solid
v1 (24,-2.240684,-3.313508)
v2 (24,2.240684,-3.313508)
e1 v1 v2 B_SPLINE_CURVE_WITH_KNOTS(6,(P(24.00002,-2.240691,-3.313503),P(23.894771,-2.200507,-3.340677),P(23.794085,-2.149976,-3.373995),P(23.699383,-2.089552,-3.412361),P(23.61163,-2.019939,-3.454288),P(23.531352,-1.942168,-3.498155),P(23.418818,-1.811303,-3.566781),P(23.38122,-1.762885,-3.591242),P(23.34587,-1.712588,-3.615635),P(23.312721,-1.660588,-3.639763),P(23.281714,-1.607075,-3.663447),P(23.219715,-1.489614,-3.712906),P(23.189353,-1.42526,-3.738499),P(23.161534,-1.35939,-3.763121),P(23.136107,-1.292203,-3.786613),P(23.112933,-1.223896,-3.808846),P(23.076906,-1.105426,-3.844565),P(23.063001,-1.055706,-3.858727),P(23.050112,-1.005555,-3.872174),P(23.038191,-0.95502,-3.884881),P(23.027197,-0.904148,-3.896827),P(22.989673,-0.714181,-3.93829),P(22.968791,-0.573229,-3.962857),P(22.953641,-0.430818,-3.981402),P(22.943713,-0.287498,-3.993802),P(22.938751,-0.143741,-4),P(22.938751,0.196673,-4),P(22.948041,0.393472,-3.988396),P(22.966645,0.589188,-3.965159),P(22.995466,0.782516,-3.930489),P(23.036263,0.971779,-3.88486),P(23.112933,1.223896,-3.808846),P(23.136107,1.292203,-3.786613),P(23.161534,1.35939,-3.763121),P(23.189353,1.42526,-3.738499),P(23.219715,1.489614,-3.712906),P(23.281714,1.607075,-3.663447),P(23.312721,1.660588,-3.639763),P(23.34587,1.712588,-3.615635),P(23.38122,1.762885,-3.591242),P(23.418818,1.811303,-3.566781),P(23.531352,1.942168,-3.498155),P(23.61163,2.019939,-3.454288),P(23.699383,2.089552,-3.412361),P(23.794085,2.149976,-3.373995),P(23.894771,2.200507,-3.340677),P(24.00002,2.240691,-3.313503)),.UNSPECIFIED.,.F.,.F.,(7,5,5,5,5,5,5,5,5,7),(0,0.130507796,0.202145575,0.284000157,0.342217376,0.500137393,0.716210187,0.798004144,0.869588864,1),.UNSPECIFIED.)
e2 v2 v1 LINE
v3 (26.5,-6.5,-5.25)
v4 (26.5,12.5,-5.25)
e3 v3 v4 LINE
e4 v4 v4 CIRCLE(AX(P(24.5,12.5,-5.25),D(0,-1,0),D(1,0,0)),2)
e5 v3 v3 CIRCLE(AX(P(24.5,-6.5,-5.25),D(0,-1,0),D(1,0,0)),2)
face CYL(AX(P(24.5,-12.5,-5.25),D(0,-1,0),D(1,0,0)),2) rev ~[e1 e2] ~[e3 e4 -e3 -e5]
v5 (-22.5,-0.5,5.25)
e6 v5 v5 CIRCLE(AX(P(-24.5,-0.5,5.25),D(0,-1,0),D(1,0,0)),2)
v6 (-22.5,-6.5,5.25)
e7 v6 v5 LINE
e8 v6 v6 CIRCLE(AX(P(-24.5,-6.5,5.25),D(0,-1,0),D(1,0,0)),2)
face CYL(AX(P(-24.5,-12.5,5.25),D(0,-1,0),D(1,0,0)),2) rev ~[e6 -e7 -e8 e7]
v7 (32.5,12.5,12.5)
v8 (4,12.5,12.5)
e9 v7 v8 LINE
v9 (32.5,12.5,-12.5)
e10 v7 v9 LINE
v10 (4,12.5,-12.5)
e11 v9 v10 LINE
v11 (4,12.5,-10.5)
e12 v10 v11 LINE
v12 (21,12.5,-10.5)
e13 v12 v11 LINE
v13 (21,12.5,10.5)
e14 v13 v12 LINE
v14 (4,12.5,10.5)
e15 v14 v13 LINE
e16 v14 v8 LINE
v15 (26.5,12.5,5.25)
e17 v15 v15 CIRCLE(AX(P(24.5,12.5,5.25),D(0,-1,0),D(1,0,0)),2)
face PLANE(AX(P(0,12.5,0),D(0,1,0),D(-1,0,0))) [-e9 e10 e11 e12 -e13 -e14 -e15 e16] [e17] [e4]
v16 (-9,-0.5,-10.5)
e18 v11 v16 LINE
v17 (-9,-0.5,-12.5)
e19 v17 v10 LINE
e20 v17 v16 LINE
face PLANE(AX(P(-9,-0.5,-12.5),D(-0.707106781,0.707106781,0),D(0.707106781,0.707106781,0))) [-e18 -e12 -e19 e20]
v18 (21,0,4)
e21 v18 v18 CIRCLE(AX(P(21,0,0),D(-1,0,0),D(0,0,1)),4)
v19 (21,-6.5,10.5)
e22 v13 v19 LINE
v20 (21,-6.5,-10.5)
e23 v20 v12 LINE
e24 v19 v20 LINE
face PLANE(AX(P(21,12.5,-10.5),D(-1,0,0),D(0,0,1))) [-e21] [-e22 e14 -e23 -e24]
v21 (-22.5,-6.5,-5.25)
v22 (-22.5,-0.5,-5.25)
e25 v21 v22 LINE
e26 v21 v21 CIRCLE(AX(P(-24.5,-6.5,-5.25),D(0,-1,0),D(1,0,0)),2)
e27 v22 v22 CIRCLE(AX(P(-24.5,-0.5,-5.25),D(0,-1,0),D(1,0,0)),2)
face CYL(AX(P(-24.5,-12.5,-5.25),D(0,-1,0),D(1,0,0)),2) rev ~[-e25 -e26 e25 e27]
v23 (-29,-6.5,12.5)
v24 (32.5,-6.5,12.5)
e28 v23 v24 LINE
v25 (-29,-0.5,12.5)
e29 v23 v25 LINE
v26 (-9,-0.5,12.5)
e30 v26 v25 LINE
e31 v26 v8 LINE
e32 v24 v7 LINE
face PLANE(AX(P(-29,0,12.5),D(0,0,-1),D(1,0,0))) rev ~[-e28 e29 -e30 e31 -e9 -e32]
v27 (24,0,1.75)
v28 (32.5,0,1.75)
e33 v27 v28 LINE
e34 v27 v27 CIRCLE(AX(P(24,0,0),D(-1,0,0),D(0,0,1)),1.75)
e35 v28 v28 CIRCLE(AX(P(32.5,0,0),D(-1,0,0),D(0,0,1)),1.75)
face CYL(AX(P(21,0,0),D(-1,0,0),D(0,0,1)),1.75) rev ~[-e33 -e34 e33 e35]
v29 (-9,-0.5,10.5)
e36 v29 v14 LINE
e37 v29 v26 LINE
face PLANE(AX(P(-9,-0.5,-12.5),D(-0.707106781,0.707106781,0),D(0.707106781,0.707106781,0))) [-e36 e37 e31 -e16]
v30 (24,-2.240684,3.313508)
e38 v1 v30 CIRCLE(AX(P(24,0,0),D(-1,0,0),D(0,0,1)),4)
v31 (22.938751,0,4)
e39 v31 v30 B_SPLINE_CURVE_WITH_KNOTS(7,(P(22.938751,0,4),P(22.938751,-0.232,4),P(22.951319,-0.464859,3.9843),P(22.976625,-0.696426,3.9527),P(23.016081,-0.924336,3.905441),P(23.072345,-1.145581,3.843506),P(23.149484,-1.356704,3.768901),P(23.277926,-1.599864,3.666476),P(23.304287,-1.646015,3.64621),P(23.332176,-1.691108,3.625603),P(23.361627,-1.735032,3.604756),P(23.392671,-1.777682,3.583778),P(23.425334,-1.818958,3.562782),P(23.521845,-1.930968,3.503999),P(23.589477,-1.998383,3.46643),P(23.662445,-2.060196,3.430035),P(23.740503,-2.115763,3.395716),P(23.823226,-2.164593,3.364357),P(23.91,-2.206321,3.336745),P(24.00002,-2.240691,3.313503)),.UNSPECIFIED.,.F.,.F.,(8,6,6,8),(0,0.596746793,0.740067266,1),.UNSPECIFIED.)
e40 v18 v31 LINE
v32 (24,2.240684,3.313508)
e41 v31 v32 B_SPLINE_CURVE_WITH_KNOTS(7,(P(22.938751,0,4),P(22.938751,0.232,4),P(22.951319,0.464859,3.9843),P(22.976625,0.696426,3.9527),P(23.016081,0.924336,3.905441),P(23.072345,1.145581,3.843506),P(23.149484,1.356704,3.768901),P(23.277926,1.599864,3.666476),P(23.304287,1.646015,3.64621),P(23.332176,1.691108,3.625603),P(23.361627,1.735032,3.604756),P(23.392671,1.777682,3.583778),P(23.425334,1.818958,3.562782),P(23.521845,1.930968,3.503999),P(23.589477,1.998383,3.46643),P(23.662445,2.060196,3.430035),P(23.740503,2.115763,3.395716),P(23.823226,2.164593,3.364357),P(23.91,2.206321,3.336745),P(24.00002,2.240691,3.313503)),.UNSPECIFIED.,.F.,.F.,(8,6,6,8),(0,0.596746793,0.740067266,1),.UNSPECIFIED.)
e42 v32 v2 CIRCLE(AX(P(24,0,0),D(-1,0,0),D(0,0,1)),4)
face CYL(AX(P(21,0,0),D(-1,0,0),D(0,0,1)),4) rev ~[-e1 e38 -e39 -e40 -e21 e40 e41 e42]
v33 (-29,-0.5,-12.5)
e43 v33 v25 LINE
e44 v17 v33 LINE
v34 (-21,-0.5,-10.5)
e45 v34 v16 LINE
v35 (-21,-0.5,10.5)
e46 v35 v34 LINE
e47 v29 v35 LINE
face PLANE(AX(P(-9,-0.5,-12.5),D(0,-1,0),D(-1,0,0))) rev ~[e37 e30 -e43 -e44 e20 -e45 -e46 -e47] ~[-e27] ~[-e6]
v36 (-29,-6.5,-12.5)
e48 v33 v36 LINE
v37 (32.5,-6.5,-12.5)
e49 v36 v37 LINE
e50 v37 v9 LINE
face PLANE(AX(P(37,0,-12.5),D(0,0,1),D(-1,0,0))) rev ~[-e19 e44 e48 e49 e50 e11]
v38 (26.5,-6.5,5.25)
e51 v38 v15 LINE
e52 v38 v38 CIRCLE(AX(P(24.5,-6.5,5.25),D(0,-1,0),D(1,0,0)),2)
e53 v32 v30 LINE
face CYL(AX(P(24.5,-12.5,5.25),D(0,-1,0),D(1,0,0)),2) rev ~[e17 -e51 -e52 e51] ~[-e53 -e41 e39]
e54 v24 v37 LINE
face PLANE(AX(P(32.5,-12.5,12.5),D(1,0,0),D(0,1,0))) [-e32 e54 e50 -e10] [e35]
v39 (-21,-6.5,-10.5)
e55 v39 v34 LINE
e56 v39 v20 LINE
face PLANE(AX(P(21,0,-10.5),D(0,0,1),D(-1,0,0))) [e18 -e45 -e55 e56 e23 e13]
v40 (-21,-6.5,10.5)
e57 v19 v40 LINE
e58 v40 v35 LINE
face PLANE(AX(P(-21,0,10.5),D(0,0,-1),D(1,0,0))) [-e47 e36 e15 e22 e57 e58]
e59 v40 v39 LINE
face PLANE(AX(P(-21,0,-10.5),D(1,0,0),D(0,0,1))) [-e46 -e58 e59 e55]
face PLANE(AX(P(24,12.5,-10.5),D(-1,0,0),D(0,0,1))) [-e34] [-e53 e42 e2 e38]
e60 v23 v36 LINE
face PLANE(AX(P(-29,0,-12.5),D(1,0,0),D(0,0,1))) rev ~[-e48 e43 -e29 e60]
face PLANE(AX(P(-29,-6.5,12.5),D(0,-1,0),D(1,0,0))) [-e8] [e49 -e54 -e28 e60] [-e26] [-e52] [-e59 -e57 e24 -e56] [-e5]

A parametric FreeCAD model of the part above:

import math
import FreeCAD as App
import Part
import Sketcher
Q = App.Units.Quantity

doc = App.newDocument("Part")
params = doc.addObject("Spreadsheet::Sheet", "Params")
for row, (alias, value) in enumerate([
    ("sketch1_width", "42 mm"),
    ("sketch1_height", "21 mm"),
    ("pad1_length", "25 mm"),
    ("sketch2_radius", "11 mm"),
    ("sketch2_width", "10 mm"),
    ("pad2_length", "5 mm"),
    ("sketch3_diameter", "3.5 mm"),
    ("sketch4_width", "3 mm"),
    ("sketch4_height", "21 mm"),
    ("pocket2_length", "7 mm"),
    ("sketch5_width", "3 mm"),
    ("sketch5_height", "21 mm"),
    ("pocket3_length", "7 mm"),
    ("sketch6_diameter", "6 mm"),
    ("sketch7_diameter", "3.5 mm"),
    ("sketch7_diameter2", "6 mm"),
    ("pad3_length", "18 mm"),
    ("sketch8_diameter", "8 mm"),
    ("pocket5_length", "3 mm"),
    ("sketch9_diameter", "4 mm"),
    ("sketch10_width", "20 mm"),
    ("sketch10_width2", "33 mm"),
    ("sketch10_height", "13 mm"),
    ("sketch11_height", "25 mm"),
    ("sketch12_height", "6 mm"),
    ("sketch12_width", "61.5 mm"),
], start=1):
    params.set(f"A{row}", alias)
    params.set(f"B{row}", "=" + value)
    params.setAlias(f"B{row}", alias)

body = doc.addObject("PartDesign::Body", "Body")

# Sketch on XZ plane
sketch1 = body.newObject("Sketcher::SketchObject", "Sketch")
sketch1.AttachmentSupport = (doc.getObject("XZ_Plane"), [""])
sketch1.MapMode = "FlatFace"
sketch1.addGeometry(Part.LineSegment(App.Vector(-29, -12, 0), App.Vector(-29, 12, 0)), False)
sketch1.addGeometry(Part.LineSegment(App.Vector(-29, 12, 0), App.Vector(46, 12, 0)), False)
sketch1.addGeometry(Part.LineSegment(App.Vector(46, 12, 0), App.Vector(37, -12, 0)), False)
sketch1.addGeometry(Part.LineSegment(App.Vector(37, -12, 0), App.Vector(-29, -12, 0)), False)
sketch1.addGeometry(Part.LineSegment(App.Vector(21, 10, 0), App.Vector(-21, 10, 0)), False)
sketch1.addGeometry(Part.LineSegment(App.Vector(-21, 10, 0), App.Vector(-21, -10, 0)), False)
sketch1.addGeometry(Part.LineSegment(App.Vector(-21, -10, 0), App.Vector(21, -10, 0)), False)
sketch1.addGeometry(Part.LineSegment(App.Vector(21, -10, 0), App.Vector(21, 10, 0)), False)
sketch1.addConstraint(Sketcher.Constraint("Coincident", 0, 2, 1, 1))
sketch1.addConstraint(Sketcher.Constraint("Coincident", 1, 2, 2, 1))
sketch1.addConstraint(Sketcher.Constraint("Coincident", 2, 2, 3, 1))
sketch1.addConstraint(Sketcher.Constraint("Coincident", 3, 2, 0, 1))
sketch1.addConstraint(Sketcher.Constraint("Coincident", 4, 2, 5, 1))
sketch1.addConstraint(Sketcher.Constraint("Coincident", 5, 2, 6, 1))
sketch1.addConstraint(Sketcher.Constraint("Coincident", 6, 2, 7, 1))
sketch1.addConstraint(Sketcher.Constraint("Coincident", 7, 2, 4, 1))
sketch1.addConstraint(Sketcher.Constraint("Vertical", 0))
sketch1.addConstraint(Sketcher.Constraint("Horizontal", 1))
sketch1.addConstraint(Sketcher.Constraint("Horizontal", 3))
sketch1.addConstraint(Sketcher.Constraint("Horizontal", 4))
sketch1.addConstraint(Sketcher.Constraint("Vertical", 5))
sketch1.addConstraint(Sketcher.Constraint("Horizontal", 6))
sketch1.addConstraint(Sketcher.Constraint("Vertical", 7))
sketch1.addConstraint(Sketcher.Constraint("Symmetric", 4, 2, 6, 2, -1, 1))
sketch1.addConstraint(Sketcher.Constraint("DistanceX", 4, 2, 4, 1, 42.0))
sketch1.addConstraint(Sketcher.Constraint("DistanceY", 5, 2, 5, 1, 21.0))
sketch1.addConstraint(Sketcher.Constraint("DistanceX", 0, 2, 4, 2, 8.0))
sketch1.addConstraint(Sketcher.Constraint("DistanceY", 4, 2, 0, 2, 2.0))
sketch1.addConstraint(Sketcher.Constraint("DistanceY", 3, 2, 5, 2, 2.0))
sketch1.addConstraint(Sketcher.Constraint("DistanceX", 6, 2, 2, 2, 16.0))
sketch1.addConstraint(Sketcher.Constraint("Angle", 2, Q("-110 deg")))
sketch1.setExpression("Constraints[16]", "Params.sketch1_width")
sketch1.setExpression("Constraints[17]", "Params.sketch1_height")
pad1 = body.newObject("PartDesign::Pad", "Pad")
pad1.Profile = sketch1
pad1.setExpression("Length", "Params.pad1_length")
pad1.Midplane = True

# Sketch on an angled plane
sketch2 = body.newObject("Sketcher::SketchObject", "Sketch001")
sketch2.Placement = App.Placement(App.Vector(37, -12.5, -12.5), App.Rotation(App.Vector(-0.342020143, 0, -0.939692621), App.Vector(0, 1, 0), App.Vector(0.939692621, 0, -0.342020143), "ZXY"))
sketch2.addGeometry(Part.ArcOfCircle(Part.Circle(App.Vector(-13, 13, 0), App.Vector(0, 0, 1), 11), math.radians(117), math.radians(243)), False)
sketch2.addGeometry(Part.LineSegment(App.Vector(-18, 3, 0), App.Vector(-8, 3, 0)), False)
sketch2.addGeometry(Part.ArcOfCircle(Part.Circle(App.Vector(-13, 13, 0), App.Vector(0, 0, 1), 11), math.radians(-63), math.radians(63)), False)
sketch2.addGeometry(Part.LineSegment(App.Vector(-8, 22, 0), App.Vector(-18, 22, 0)), False)
sketch2.addConstraint(Sketcher.Constraint("Coincident", 0, 2, 1, 1))
sketch2.addConstraint(Sketcher.Constraint("Coincident", 1, 2, 2, 1))
sketch2.addConstraint(Sketcher.Constraint("Coincident", 2, 2, 3, 1))
sketch2.addConstraint(Sketcher.Constraint("Coincident", 3, 2, 0, 1))
sketch2.addConstraint(Sketcher.Constraint("Horizontal", 1))
sketch2.addConstraint(Sketcher.Constraint("Horizontal", 3))
sketch2.addConstraint(Sketcher.Constraint("Coincident", 2, 3, 0, 3))
sketch2.addConstraint(Sketcher.Constraint("Equal", 0, 2))
sketch2.addConstraint(Sketcher.Constraint("Vertical", 1, 2, 2, 2))
sketch2.addConstraint(Sketcher.Constraint("Radius", 0, 11.0))
sketch2.addConstraint(Sketcher.Constraint("DistanceX", 1, 1, 1, 2, 10.0))
sketch2.addConstraint(Sketcher.Constraint("DistanceY", -1, 1, 0, 3, 12.5))
sketch2.addConstraint(Sketcher.Constraint("DistanceX", 0, 3, -1, 1, 13.3022))
sketch2.setExpression("Constraints[9]", "Params.sketch2_radius")
sketch2.setExpression("Constraints[10]", "Params.sketch2_width")
pad2 = body.newObject("PartDesign::Pad", "Pad001")
pad2.Profile = sketch2
pad2.setExpression("Length", "Params.pad2_length")

# Sketch on XZ plane
sketch3 = body.newObject("Sketcher::SketchObject", "Sketch002")
sketch3.AttachmentSupport = (doc.getObject("XZ_Plane"), [""])
sketch3.MapMode = "FlatFace"
sketch3.AttachmentOffset = App.Placement(App.Vector(0, 0, 9.798), App.Rotation())
sketch3.addGeometry(Part.Circle(App.Vector(43.9, -0.9, 0), App.Vector(0, 0, 1), 1.8), False)
sketch3.addConstraint(Sketcher.Constraint("Diameter", 0, 3.5))
sketch3.addConstraint(Sketcher.Constraint("DistanceY", 0, 3, -1, 1, 0.855))
sketch3.addConstraint(Sketcher.Constraint("DistanceX", -1, 1, 0, 3, 43.8988))
sketch3.setExpression("Constraints[0]", "Params.sketch3_diameter")
pocket1 = body.newObject("PartDesign::Pocket", "Pocket")
pocket1.Profile = sketch3
pocket1.Type = "ThroughAll"

# Sketch on YZ plane
sketch4 = body.newObject("Sketcher::SketchObject", "Sketch003")
sketch4.AttachmentSupport = (doc.getObject("YZ_Plane"), [""])
sketch4.MapMode = "FlatFace"
sketch4.AttachmentOffset = App.Placement(App.Vector(0, 0, 21), App.Rotation())
sketch4.addGeometry(Part.LineSegment(App.Vector(-6.5, -10.5, 0), App.Vector(-9.5, -10.5, 0)), False)
sketch4.addGeometry(Part.LineSegment(App.Vector(-9.5, -10.5, 0), App.Vector(-9.5, 10.5, 0)), False)
sketch4.addGeometry(Part.LineSegment(App.Vector(-9.5, 10.5, 0), App.Vector(-6.5, 10.5, 0)), False)
sketch4.addGeometry(Part.LineSegment(App.Vector(-6.5, 10.5, 0), App.Vector(-6.5, -10.5, 0)), False)
sketch4.addConstraint(Sketcher.Constraint("Coincident", 0, 2, 1, 1))
sketch4.addConstraint(Sketcher.Constraint("Coincident", 1, 2, 2, 1))
sketch4.addConstraint(Sketcher.Constraint("Coincident", 2, 2, 3, 1))
sketch4.addConstraint(Sketcher.Constraint("Coincident", 3, 2, 0, 1))
sketch4.addConstraint(Sketcher.Constraint("Horizontal", 0))
sketch4.addConstraint(Sketcher.Constraint("Vertical", 1))
sketch4.addConstraint(Sketcher.Constraint("Horizontal", 2))
sketch4.addConstraint(Sketcher.Constraint("Vertical", 3))
sketch4.addConstraint(Sketcher.Constraint("DistanceX", 0, 2, 0, 1, 3.0))
sketch4.addConstraint(Sketcher.Constraint("DistanceY", 1, 1, 1, 2, 21.0))
sketch4.addConstraint(Sketcher.Constraint("DistanceX", 0, 2, -1, 1, 9.5))
sketch4.addConstraint(Sketcher.Constraint("DistanceY", 0, 2, -1, 1, 10.5))
sketch4.setExpression("Constraints[8]", "Params.sketch4_width")
sketch4.setExpression("Constraints[9]", "Params.sketch4_height")
pocket2 = body.newObject("PartDesign::Pocket", "Pocket001")
pocket2.Profile = sketch4
pocket2.setExpression("Length", "Params.pocket2_length")
pocket2.Reversed = True

# Sketch on YZ plane
sketch5 = body.newObject("Sketcher::SketchObject", "Sketch004")
sketch5.AttachmentSupport = (doc.getObject("YZ_Plane"), [""])
sketch5.MapMode = "FlatFace"
sketch5.AttachmentOffset = App.Placement(App.Vector(0, 0, -21), App.Rotation())
sketch5.addGeometry(Part.LineSegment(App.Vector(-6.5, -10.5, 0), App.Vector(-6.5, 10.5, 0)), False)
sketch5.addGeometry(Part.LineSegment(App.Vector(-6.5, 10.5, 0), App.Vector(-9.5, 10.5, 0)), False)
sketch5.addGeometry(Part.LineSegment(App.Vector(-9.5, 10.5, 0), App.Vector(-9.5, -10.5, 0)), False)
sketch5.addGeometry(Part.LineSegment(App.Vector(-9.5, -10.5, 0), App.Vector(-6.5, -10.5, 0)), False)
sketch5.addConstraint(Sketcher.Constraint("Coincident", 0, 2, 1, 1))
sketch5.addConstraint(Sketcher.Constraint("Coincident", 1, 2, 2, 1))
sketch5.addConstraint(Sketcher.Constraint("Coincident", 2, 2, 3, 1))
sketch5.addConstraint(Sketcher.Constraint("Coincident", 3, 2, 0, 1))
sketch5.addConstraint(Sketcher.Constraint("Vertical", 0))
sketch5.addConstraint(Sketcher.Constraint("Horizontal", 1))
sketch5.addConstraint(Sketcher.Constraint("Vertical", 2))
sketch5.addConstraint(Sketcher.Constraint("Horizontal", 3))
sketch5.addConstraint(Sketcher.Constraint("DistanceX", 1, 2, 1, 1, 3.0))
sketch5.addConstraint(Sketcher.Constraint("DistanceY", 0, 1, 0, 2, 21.0))
sketch5.addConstraint(Sketcher.Constraint("DistanceX", 0, 2, -1, 1, 6.5))
sketch5.addConstraint(Sketcher.Constraint("DistanceY", -1, 1, 0, 2, 10.5))
sketch5.setExpression("Constraints[8]", "Params.sketch5_width")
sketch5.setExpression("Constraints[9]", "Params.sketch5_height")
pocket3 = body.newObject("PartDesign::Pocket", "Pocket002")
pocket3.Profile = sketch5
pocket3.setExpression("Length", "Params.pocket3_length")

# Sketch on YZ plane
sketch6 = body.newObject("Sketcher::SketchObject", "Sketch005")
sketch6.AttachmentSupport = (doc.getObject("YZ_Plane"), [""])
sketch6.MapMode = "FlatFace"
sketch6.AttachmentOffset = App.Placement(App.Vector(0, 0, 21), App.Rotation())
sketch6.addGeometry(Part.Circle(App.Vector(0, 0, 0), App.Vector(0, 0, 1), 3), False)
sketch6.addConstraint(Sketcher.Constraint("Coincident", 0, 3, -1, 1))
sketch6.addConstraint(Sketcher.Constraint("Diameter", 0, 6.0))
sketch6.setExpression("Constraints[1]", "Params.sketch6_diameter")
pocket4 = body.newObject("PartDesign::Pocket", "Pocket003")
pocket4.Profile = sketch6
pocket4.Type = "ThroughAll"
pocket4.Reversed = True

# Sketch on YZ plane
sketch7 = body.newObject("Sketcher::SketchObject", "Sketch006")
sketch7.AttachmentSupport = (doc.getObject("YZ_Plane"), [""])
sketch7.MapMode = "FlatFace"
sketch7.AttachmentOffset = App.Placement(App.Vector(0, 0, 21), App.Rotation())
sketch7.addGeometry(Part.Circle(App.Vector(0, 0, 0), App.Vector(0, 0, 1), 3), False)
sketch7.addGeometry(Part.Circle(App.Vector(0, 0, 0), App.Vector(0, 0, 1), 1.8), False)
sketch7.addConstraint(Sketcher.Constraint("Coincident", 0, 3, -1, 1))
sketch7.addConstraint(Sketcher.Constraint("Coincident", 1, 3, -1, 1))
sketch7.addConstraint(Sketcher.Constraint("Diameter", 1, 3.5))
sketch7.addConstraint(Sketcher.Constraint("Diameter", 0, 6.0))
sketch7.setExpression("Constraints[2]", "Params.sketch7_diameter")
sketch7.setExpression("Constraints[3]", "Params.sketch7_diameter2")
pad3 = body.newObject("PartDesign::Pad", "Pad002")
pad3.Profile = sketch7
pad3.setExpression("Length", "Params.pad3_length")

# Sketch on YZ plane
sketch8 = body.newObject("Sketcher::SketchObject", "Sketch007")
sketch8.AttachmentSupport = (doc.getObject("YZ_Plane"), [""])
sketch8.MapMode = "FlatFace"
sketch8.AttachmentOffset = App.Placement(App.Vector(0, 0, 21), App.Rotation())
sketch8.addGeometry(Part.Circle(App.Vector(0, 0, 0), App.Vector(0, 0, 1), 4), False)
sketch8.addConstraint(Sketcher.Constraint("Coincident", 0, 3, -1, 1))
sketch8.addConstraint(Sketcher.Constraint("Diameter", 0, 8.0))
sketch8.setExpression("Constraints[1]", "Params.sketch8_diameter")
pocket5 = body.newObject("PartDesign::Pocket", "Pocket004")
pocket5.Profile = sketch8
pocket5.setExpression("Length", "Params.pocket5_length")
pocket5.Reversed = True

# Sketch on XZ plane
sketch9 = body.newObject("Sketcher::SketchObject", "Sketch008")
sketch9.AttachmentSupport = (doc.getObject("XZ_Plane"), [""])
sketch9.MapMode = "FlatFace"
sketch9.AttachmentOffset = App.Placement(App.Vector(0, 0, 12.5), App.Rotation())
sketch9.addGeometry(Part.Circle(App.Vector(-24.5, -5.2, 0), App.Vector(0, 0, 1), 2), False)
sketch9.addGeometry(Part.Circle(App.Vector(-24.5, 5.2, 0), App.Vector(0, 0, 1), 2), False)
sketch9.addGeometry(Part.Circle(App.Vector(24.5, -5.2, 0), App.Vector(0, 0, 1), 2), False)
sketch9.addGeometry(Part.Circle(App.Vector(24.5, 5.2, 0), App.Vector(0, 0, 1), 2), False)
sketch9.addConstraint(Sketcher.Constraint("Equal", 0, 1))
sketch9.addConstraint(Sketcher.Constraint("Equal", 1, 2))
sketch9.addConstraint(Sketcher.Constraint("Equal", 2, 3))
sketch9.addConstraint(Sketcher.Constraint("Symmetric", 1, 3, 2, 3, -1, 1))
sketch9.addConstraint(Sketcher.Constraint("Symmetric", 0, 3, 3, 3, -1, 1))
sketch9.addConstraint(Sketcher.Constraint("Symmetric", 0, 3, 2, 3, -2))
sketch9.addConstraint(Sketcher.Constraint("Diameter", 0, 4.0))
sketch9.addConstraint(Sketcher.Constraint("DistanceX", 0, 3, 2, 3, 49.0))
sketch9.addConstraint(Sketcher.Constraint("DistanceY", 0, 3, 1, 3, 10.5))
sketch9.setExpression("Constraints[6]", "Params.sketch9_diameter")
pocket6 = body.newObject("PartDesign::Pocket", "Pocket005")
pocket6.Profile = sketch9
pocket6.Type = "ThroughAll"

# Sketch on XY plane
sketch10 = body.newObject("Sketcher::SketchObject", "Sketch009")
sketch10.AttachmentSupport = (doc.getObject("XY_Plane"), [""])
sketch10.MapMode = "FlatFace"
sketch10.AttachmentOffset = App.Placement(App.Vector(0, 0, -12.5), App.Rotation())
sketch10.addGeometry(Part.LineSegment(App.Vector(-29, 0, 0), App.Vector(-29, 12, 0)), False)
sketch10.addGeometry(Part.LineSegment(App.Vector(-29, 12, 0), App.Vector(4, 12, 0)), False)
sketch10.addGeometry(Part.LineSegment(App.Vector(4, 12, 0), App.Vector(-9, 0, 0)), False)
sketch10.addGeometry(Part.LineSegment(App.Vector(-9, 0, 0), App.Vector(-29, 0, 0)), False)
sketch10.addConstraint(Sketcher.Constraint("Coincident", 0, 2, 1, 1))
sketch10.addConstraint(Sketcher.Constraint("Coincident", 1, 2, 2, 1))
sketch10.addConstraint(Sketcher.Constraint("Coincident", 2, 2, 3, 1))
sketch10.addConstraint(Sketcher.Constraint("Coincident", 3, 2, 0, 1))
sketch10.addConstraint(Sketcher.Constraint("Vertical", 0))
sketch10.addConstraint(Sketcher.Constraint("Horizontal", 1))
sketch10.addConstraint(Sketcher.Constraint("Horizontal", 3))
sketch10.addConstraint(Sketcher.Constraint("DistanceX", 3, 2, 3, 1, 20.0))
sketch10.addConstraint(Sketcher.Constraint("DistanceX", 1, 1, 1, 2, 33.0))
sketch10.addConstraint(Sketcher.Constraint("DistanceY", 0, 1, 0, 2, 13.0))
sketch10.addConstraint(Sketcher.Constraint("DistanceX", 0, 2, -1, 1, 29.0))
sketch10.addConstraint(Sketcher.Constraint("DistanceY", -1, 1, 0, 2, 12.5))
sketch10.setExpression("Constraints[7]", "Params.sketch10_width")
sketch10.setExpression("Constraints[8]", "Params.sketch10_width2")
sketch10.setExpression("Constraints[9]", "Params.sketch10_height")
pocket7 = body.newObject("PartDesign::Pocket", "Pocket006")
pocket7.Profile = sketch10
pocket7.Type = "ThroughAll"
pocket7.Reversed = True

# Sketch on XY plane
sketch11 = body.newObject("Sketcher::SketchObject", "Sketch010")
sketch11.AttachmentSupport = (doc.getObject("XY_Plane"), [""])
sketch11.MapMode = "FlatFace"
sketch11.AttachmentOffset = App.Placement(App.Vector(0, 0, 12.5), App.Rotation())
sketch11.addGeometry(Part.LineSegment(App.Vector(32, 12, 0), App.Vector(32, -12, 0)), False)
sketch11.addGeometry(Part.LineSegment(App.Vector(32, -12, 0), App.Vector(50, -12, 0)), False)
sketch11.addGeometry(Part.LineSegment(App.Vector(50, -12, 0), App.Vector(50, 12, 0)), False)
sketch11.addGeometry(Part.LineSegment(App.Vector(50, 12, 0), App.Vector(32, 12, 0)), False)
sketch11.addConstraint(Sketcher.Constraint("Coincident", 0, 2, 1, 1))
sketch11.addConstraint(Sketcher.Constraint("Coincident", 1, 2, 2, 1))
sketch11.addConstraint(Sketcher.Constraint("Coincident", 2, 2, 3, 1))
sketch11.addConstraint(Sketcher.Constraint("Coincident", 3, 2, 0, 1))
sketch11.addConstraint(Sketcher.Constraint("Vertical", 0))
sketch11.addConstraint(Sketcher.Constraint("Horizontal", 1))
sketch11.addConstraint(Sketcher.Constraint("Vertical", 2))
sketch11.addConstraint(Sketcher.Constraint("Horizontal", 3))
sketch11.addConstraint(Sketcher.Constraint("DistanceY", 0, 2, 0, 1, 25.0))
sketch11.addConstraint(Sketcher.Constraint("DistanceX", -1, 1, 0, 2, 32.5))
sketch11.addConstraint(Sketcher.Constraint("DistanceY", 0, 2, -1, 1, 12.5))
sketch11.addConstraint(Sketcher.Constraint("DistanceX", 1, 1, 1, 2, 17.5103))
sketch11.setExpression("Constraints[8]", "Params.sketch11_height")
pocket8 = body.newObject("PartDesign::Pocket", "Pocket007")
pocket8.Profile = sketch11
pocket8.Type = "ThroughAll"

# Sketch on XY plane
sketch12 = body.newObject("Sketcher::SketchObject", "Sketch011")
sketch12.AttachmentSupport = (doc.getObject("XY_Plane"), [""])
sketch12.MapMode = "FlatFace"
sketch12.AttachmentOffset = App.Placement(App.Vector(0, 0, 12.5), App.Rotation())
sketch12.addGeometry(Part.LineSegment(App.Vector(-29, -6, 0), App.Vector(-29, -12, 0)), False)
sketch12.addGeometry(Part.LineSegment(App.Vector(-29, -12, 0), App.Vector(32, -12, 0)), False)
sketch12.addGeometry(Part.LineSegment(App.Vector(32, -12, 0), App.Vector(32, -6, 0)), False)
sketch12.addGeometry(Part.LineSegment(App.Vector(32, -6, 0), App.Vector(-29, -6, 0)), False)
sketch12.addConstraint(Sketcher.Constraint("Coincident", 0, 2, 1, 1))
sketch12.addConstraint(Sketcher.Constraint("Coincident", 1, 2, 2, 1))
sketch12.addConstraint(Sketcher.Constraint("Coincident", 2, 2, 3, 1))
sketch12.addConstraint(Sketcher.Constraint("Coincident", 3, 2, 0, 1))
sketch12.addConstraint(Sketcher.Constraint("Vertical", 0))
sketch12.addConstraint(Sketcher.Constraint("Horizontal", 1))
sketch12.addConstraint(Sketcher.Constraint("Vertical", 2))
sketch12.addConstraint(Sketcher.Constraint("Horizontal", 3))
sketch12.addConstraint(Sketcher.Constraint("DistanceY", 0, 2, 0, 1, 6.0))
sketch12.addConstraint(Sketcher.Constraint("DistanceX", 1, 1, 1, 2, 61.5))
sketch12.addConstraint(Sketcher.Constraint("DistanceX", 0, 2, -1, 1, 29.0))
sketch12.addConstraint(Sketcher.Constraint("DistanceY", 0, 2, -1, 1, 12.5))
sketch12.setExpression("Constraints[8]", "Params.sketch12_height")
sketch12.setExpression("Constraints[9]", "Params.sketch12_width")
pocket9 = body.newObject("PartDesign::Pocket", "Pocket008")
pocket9.Profile = sketch12
pocket9.Type = "ThroughAll"

doc.recompute()
